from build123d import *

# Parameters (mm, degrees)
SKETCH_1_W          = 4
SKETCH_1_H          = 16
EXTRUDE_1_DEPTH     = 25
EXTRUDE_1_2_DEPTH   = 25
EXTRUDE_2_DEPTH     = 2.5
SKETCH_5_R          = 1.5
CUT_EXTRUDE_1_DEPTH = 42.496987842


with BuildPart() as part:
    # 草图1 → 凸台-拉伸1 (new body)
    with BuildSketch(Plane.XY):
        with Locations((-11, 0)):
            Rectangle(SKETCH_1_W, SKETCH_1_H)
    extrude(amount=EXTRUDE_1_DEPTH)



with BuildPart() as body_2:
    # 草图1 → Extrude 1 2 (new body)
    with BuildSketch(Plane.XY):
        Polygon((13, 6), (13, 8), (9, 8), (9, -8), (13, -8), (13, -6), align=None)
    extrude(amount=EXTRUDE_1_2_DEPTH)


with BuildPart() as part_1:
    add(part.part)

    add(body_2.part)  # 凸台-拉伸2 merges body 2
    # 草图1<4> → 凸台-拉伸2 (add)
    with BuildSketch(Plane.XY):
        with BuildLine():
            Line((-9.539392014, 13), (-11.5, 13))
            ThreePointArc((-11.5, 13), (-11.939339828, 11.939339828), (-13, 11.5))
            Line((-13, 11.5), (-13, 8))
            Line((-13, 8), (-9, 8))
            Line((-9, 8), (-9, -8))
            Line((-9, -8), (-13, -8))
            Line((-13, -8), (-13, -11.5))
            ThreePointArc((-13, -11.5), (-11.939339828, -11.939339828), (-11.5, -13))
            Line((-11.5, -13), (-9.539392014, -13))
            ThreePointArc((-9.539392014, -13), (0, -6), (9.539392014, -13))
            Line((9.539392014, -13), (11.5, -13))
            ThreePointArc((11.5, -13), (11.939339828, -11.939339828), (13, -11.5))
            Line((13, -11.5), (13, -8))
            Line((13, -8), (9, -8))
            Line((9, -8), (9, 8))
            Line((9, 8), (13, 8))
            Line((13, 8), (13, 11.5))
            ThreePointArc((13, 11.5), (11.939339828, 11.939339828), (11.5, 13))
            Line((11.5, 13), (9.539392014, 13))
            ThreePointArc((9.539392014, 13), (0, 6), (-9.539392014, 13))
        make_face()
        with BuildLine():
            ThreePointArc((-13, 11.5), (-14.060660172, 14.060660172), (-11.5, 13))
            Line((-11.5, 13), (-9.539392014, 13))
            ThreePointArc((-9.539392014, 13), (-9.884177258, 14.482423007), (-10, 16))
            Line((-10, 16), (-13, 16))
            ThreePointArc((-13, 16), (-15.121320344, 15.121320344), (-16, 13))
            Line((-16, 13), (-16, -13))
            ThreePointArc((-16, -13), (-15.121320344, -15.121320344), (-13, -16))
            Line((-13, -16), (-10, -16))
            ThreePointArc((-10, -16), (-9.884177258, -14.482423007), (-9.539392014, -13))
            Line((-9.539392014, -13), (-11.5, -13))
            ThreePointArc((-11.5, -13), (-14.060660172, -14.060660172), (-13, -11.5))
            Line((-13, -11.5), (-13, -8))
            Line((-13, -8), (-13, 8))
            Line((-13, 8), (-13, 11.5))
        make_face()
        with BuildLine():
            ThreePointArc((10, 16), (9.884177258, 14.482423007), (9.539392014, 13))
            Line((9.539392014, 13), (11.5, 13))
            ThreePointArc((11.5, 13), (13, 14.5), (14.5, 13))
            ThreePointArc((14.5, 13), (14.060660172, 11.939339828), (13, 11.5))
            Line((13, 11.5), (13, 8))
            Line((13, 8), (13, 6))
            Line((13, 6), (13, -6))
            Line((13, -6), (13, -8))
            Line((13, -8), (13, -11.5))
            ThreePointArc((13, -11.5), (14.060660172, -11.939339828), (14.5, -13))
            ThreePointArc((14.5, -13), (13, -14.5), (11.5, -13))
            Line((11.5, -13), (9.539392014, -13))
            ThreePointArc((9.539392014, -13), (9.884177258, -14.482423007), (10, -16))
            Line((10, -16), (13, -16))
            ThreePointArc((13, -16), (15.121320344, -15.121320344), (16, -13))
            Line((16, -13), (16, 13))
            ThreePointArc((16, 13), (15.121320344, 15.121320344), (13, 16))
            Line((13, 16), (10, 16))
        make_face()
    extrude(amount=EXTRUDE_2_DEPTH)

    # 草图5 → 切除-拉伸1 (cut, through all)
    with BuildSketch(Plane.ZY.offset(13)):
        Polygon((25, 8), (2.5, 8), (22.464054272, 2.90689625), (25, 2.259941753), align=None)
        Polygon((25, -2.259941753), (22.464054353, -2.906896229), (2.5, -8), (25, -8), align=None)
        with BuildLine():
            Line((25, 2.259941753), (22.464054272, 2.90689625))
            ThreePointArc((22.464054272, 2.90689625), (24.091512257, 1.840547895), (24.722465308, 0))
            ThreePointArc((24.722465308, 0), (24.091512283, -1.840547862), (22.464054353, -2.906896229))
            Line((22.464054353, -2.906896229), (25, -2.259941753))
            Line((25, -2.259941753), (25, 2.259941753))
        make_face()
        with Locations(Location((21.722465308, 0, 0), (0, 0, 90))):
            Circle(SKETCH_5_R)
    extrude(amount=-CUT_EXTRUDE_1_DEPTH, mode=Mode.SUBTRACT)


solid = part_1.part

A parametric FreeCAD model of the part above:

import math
import FreeCAD as App
import Part
import Sketcher


def add_polygon(sketch, points):
    """Adds a closed chain of lines whose ends are joined by coincident constraints."""
    first, n = sketch.GeometryCount, len(points)
    for a, b in zip(points, points[1:] + points[:1]):
        sketch.addGeometry(Part.LineSegment(App.Vector(*a, 0), App.Vector(*b, 0)), False)
    for i in range(n):
        sketch.addConstraint(Sketcher.Constraint("Coincident", first + i, 2, first + (i + 1) % n, 1))

doc = App.newDocument("Part")
body = doc.addObject("PartDesign::Body", "Body")

# Sketch on XY plane
sketch1 = doc.addObject("Sketcher::SketchObject", "Sketch")
body.addObject(sketch1)
sketch1.AttachmentSupport = (doc.XY_Plane, [""])
sketch1.MapMode = "FlatFace"
add_polygon(sketch1, [(-13, 8), (-13, -8), (-9, -8), (-9, 8)])  # lines 0-3
sketch1.addConstraint([
    Sketcher.Constraint("Vertical", 0),
    Sketcher.Constraint("Horizontal", 1),
    Sketcher.Constraint("Vertical", 2),
    Sketcher.Constraint("Horizontal", 3),
    Sketcher.Constraint("DistanceX", 1, 1, 1, 2, 4.0),
    Sketcher.Constraint("DistanceY", 0, 2, 0, 1, 16.0),
    Sketcher.Constraint("DistanceX", 0, 2, -1, 1, 13.0),
    Sketcher.Constraint("DistanceY", 0, 2, -1, 1, 8.0),
])
pad1 = doc.addObject("PartDesign::Pad", "Pad")
body.addObject(pad1)
pad1.Profile = sketch1
pad1.Length = 25
body2 = doc.addObject("PartDesign::Body", "Body001")

# Sketch on XY plane
sketch2 = doc.addObject("Sketcher::SketchObject", "Sketch001")
body2.addObject(sketch2)
sketch2.AttachmentSupport = (doc.getObject("XY_Plane001"), [""])
sketch2.MapMode = "FlatFace"
add_polygon(sketch2, [(13, 8), (9, 8), (9, -8), (13, -8)])  # lines 0-3
sketch2.addConstraint([
    Sketcher.Constraint("Horizontal", 0),
    Sketcher.Constraint("Vertical", 1),
    Sketcher.Constraint("Horizontal", 2),
    Sketcher.Constraint("Vertical", 3),
    Sketcher.Constraint("DistanceX", 0, 2, 0, 1, 4.0),
    Sketcher.Constraint("DistanceY", 1, 2, 1, 1, 16.0),
    Sketcher.Constraint("DistanceX", -1, 1, 0, 2, 9.0),
    Sketcher.Constraint("DistanceY", -1, 1, 0, 2, 8.0),
])
pad2 = doc.addObject("PartDesign::Pad", "Pad001")
body2.addObject(pad2)
pad2.Profile = sketch2
pad2.Length = 25
body.AllowCompound = True
doc.recompute()

boolean = doc.addObject("PartDesign::Boolean", "Boolean")
body.addObject(boolean)
boolean.Type = "Fuse"
boolean.addObjects([body2])

# Sketch on XY plane
sketch3 = doc.addObject("Sketcher::SketchObject", "Sketch002")
body.addObject(sketch3)
sketch3.AttachmentSupport = (doc.XY_Plane, [""])
sketch3.MapMode = "FlatFace"
sketch3.addGeometry(Part.LineSegment(App.Vector(-10, 16, 0), App.Vector(-13, 16, 0)), False)  # 0
sketch3.addGeometry(Part.ArcOfCircle(Part.Circle(App.Vector(-13, 13, 0), App.Vector(0, 0, 1), 3), math.radians(90), math.radians(180)), False)  # 1
sketch3.addGeometry(Part.LineSegment(App.Vector(-16, 13, 0), App.Vector(-16, -13, 0)), False)  # 2
sketch3.addGeometry(Part.ArcOfCircle(Part.Circle(App.Vector(-13, -13, 0), App.Vector(0, 0, 1), 3), math.radians(180), math.radians(270)), False)  # 3
sketch3.addGeometry(Part.LineSegment(App.Vector(-13, -16, 0), App.Vector(-10, -16, 0)), False)  # 4
sketch3.addGeometry(Part.ArcOfCircle(Part.Circle(App.Vector(0, -16, 0), App.Vector(0, 0, 1), 10), math.radians(17.457603), math.radians(180)), False)  # 5
sketch3.addGeometry(Part.ArcOfCircle(Part.Circle(App.Vector(0, -16, 0), App.Vector(0, 0, 1), 10), math.radians(0), math.radians(17.457603)), False)  # 6
sketch3.addGeometry(Part.LineSegment(App.Vector(10, -16, 0), App.Vector(13, -16, 0)), False)  # 7
sketch3.addGeometry(Part.ArcOfCircle(Part.Circle(App.Vector(13, -13, 0), App.Vector(0, 0, 1), 3), math.radians(-90), math.radians(0)), False)  # 8
sketch3.addGeometry(Part.LineSegment(App.Vector(16, -13, 0), App.Vector(16, 13, 0)), False)  # 9
sketch3.addGeometry(Part.ArcOfCircle(Part.Circle(App.Vector(13, 13, 0), App.Vector(0, 0, 1), 3), math.radians(0), math.radians(90)), False)  # 10
sketch3.addGeometry(Part.LineSegment(App.Vector(13, 16, 0), App.Vector(10, 16, 0)), False)  # 11
sketch3.addGeometry(Part.ArcOfCircle(Part.Circle(App.Vector(0, 16, 0), App.Vector(0, 0, 1), 10), math.radians(-180), math.radians(0)), False)  # 12
sketch3.addGeometry(Part.ArcOfCircle(Part.Circle(App.Vector(-13, 13, 0), App.Vector(0, 0, 1), 1.5), math.radians(-90), math.radians(0)), False)  # 13
sketch3.addGeometry(Part.ArcOfCircle(Part.Circle(App.Vector(-13, 13, 0), App.Vector(0, 0, 1), 1.5), math.radians(0), math.radians(270)), False)  # 14
add_polygon(sketch3, [(-13, 8), (-9, 8), (-9, -8), (-13, -8)])  # lines 15-18
sketch3.addGeometry(Part.ArcOfCircle(Part.Circle(App.Vector(-13, -13, 0), App.Vector(0, 0, 1), 1.5), math.radians(0), math.radians(90)), False)  # 19
sketch3.addGeometry(Part.ArcOfCircle(Part.Circle(App.Vector(-13, -13, 0), App.Vector(0, 0, 1), 1.5), math.radians(90), math.radians(360)), False)  # 20
sketch3.addGeometry(Part.ArcOfCircle(Part.Circle(App.Vector(13, -13, 0), App.Vector(0, 0, 1), 1.5), math.radians(90), math.radians(180)), False)  # 21
sketch3.addGeometry(Part.ArcOfCircle(Part.Circle(App.Vector(13, -13, 0), App.Vector(0, 0, 1), 1.5), math.radians(0), math.radians(90)), False)  # 22
sketch3.addGeometry(Part.ArcOfCircle(Part.Circle(App.Vector(13, -13, 0), App.Vector(0, 0, 1), 1.5), math.radians(180), math.radians(360)), False)  # 23
add_polygon(sketch3, [(13, -8), (9, -8), (9, 8), (13, 8)])  # lines 24-27
sketch3.addGeometry(Part.ArcOfCircle(Part.Circle(App.Vector(13, 13, 0), App.Vector(0, 0, 1), 1.5), math.radians(180), math.radians(270)), False)  # 28
sketch3.addGeometry(Part.ArcOfCircle(Part.Circle(App.Vector(13, 13, 0), App.Vector(0, 0, 1), 1.5), math.radians(0), math.radians(180)), False)  # 29
sketch3.addGeometry(Part.ArcOfCircle(Part.Circle(App.Vector(13, 13, 0), App.Vector(0, 0, 1), 1.5), math.radians(-90), math.radians(0)), False)  # 30
sketch3.addConstraint([
    Sketcher.Constraint("Tangent", 0, 2, 1, 1),
    Sketcher.Constraint("Tangent", 1, 2, 2, 1),
    Sketcher.Constraint("Tangent", 2, 2, 3, 1),
    Sketcher.Constraint("Tangent", 3, 2, 4, 1),
    Sketcher.Constraint("Coincident", 4, 2, 5, 2),
    Sketcher.Constraint("Tangent", 5, 1, 6, 2),
    Sketcher.Constraint("Coincident", 6, 1, 7, 1),
    Sketcher.Constraint("Tangent", 7, 2, 8, 1),
    Sketcher.Constraint("Tangent", 8, 2, 9, 1),
    Sketcher.Constraint("Tangent", 9, 2, 10, 1),
    Sketcher.Constraint("Tangent", 10, 2, 11, 1),
    Sketcher.Constraint("Coincident", 11, 2, 12, 2),
    Sketcher.Constraint("Coincident", 12, 1, 0, 1),
    Sketcher.Constraint("Tangent", 13, 1, 14, 2),
    Sketcher.Constraint("Coincident", 14, 1, 13, 2),
    Sketcher.Constraint("Tangent", 19, 1, 20, 2),
    Sketcher.Constraint("Coincident", 20, 1, 19, 2),
    Sketcher.Constraint("Tangent", 21, 1, 22, 2),
    Sketcher.Constraint("Tangent", 22, 1, 23, 2),
    Sketcher.Constraint("Tangent", 23, 1, 21, 2),
    Sketcher.Constraint("Tangent", 28, 1, 29, 2),
    Sketcher.Constraint("Tangent", 29, 1, 30, 2),
    Sketcher.Constraint("Tangent", 30, 1, 28, 2),
    Sketcher.Constraint("Horizontal", 0),
    Sketcher.Constraint("Vertical", 2),
    Sketcher.Constraint("Horizontal", 4),
    Sketcher.Constraint("Horizontal", 7),
    Sketcher.Constraint("Vertical", 9),
    Sketcher.Constraint("Horizontal", 11),
    Sketcher.Constraint("Horizontal", 15),
    Sketcher.Constraint("Vertical", 16),
    Sketcher.Constraint("Horizontal", 17),
    Sketcher.Constraint("Vertical", 18),
    Sketcher.Constraint("Horizontal", 24),
    Sketcher.Constraint("Vertical", 25),
    Sketcher.Constraint("Horizontal", 26),
    Sketcher.Constraint("Vertical", 27),
    Sketcher.Constraint("Coincident", 13, 3, 1, 3),
    Sketcher.Constraint("Coincident", 19, 3, 3, 3),
    Sketcher.Constraint("Coincident", 21, 3, 8, 3),
    Sketcher.Constraint("Coincident", 28, 3, 10, 3),
    Sketcher.Constraint("Equal", 1, 3),
    Sketcher.Constraint("Equal", 5, 6),
    Sketcher.Constraint("Equal", 3, 8),
    Sketcher.Constraint("Equal", 8, 10),
    Sketcher.Constraint("Equal", 6, 12),
    Sketcher.Constraint("Equal", 14, 19),
    Sketcher.Constraint("Equal", 20, 21),
    Sketcher.Constraint("Equal", 23, 28),
    Sketcher.Constraint("Symmetric", 1, 3, 8, 3, -1, 1),
    Sketcher.Constraint("Symmetric", 5, 3, 12, 3, -1, 1),
    Sketcher.Constraint("Symmetric", 15, 2, 24, 2, -1, 1),
    Sketcher.Constraint("Symmetric", 17, 2, 26, 2, -1, 1),
    Sketcher.Constraint("Symmetric", 20, 1, 30, 1, -1, 1),
    Sketcher.Constraint("Symmetric", 4, 2, 6, 1, -2),
    Sketcher.Constraint("Horizontal", 12, 3, 0, 2),
    Sketcher.Constraint("Horizontal", 2, 2, 5, 1),
    Sketcher.Constraint("Horizontal", 9, 2, 14, 1),
    Sketcher.Constraint("Horizontal", 8, 2, 19, 1),
    Sketcher.Constraint("Horizontal", 19, 1, 22, 1),
    Sketcher.Constraint("Horizontal", 22, 1, 23, 1),
    Sketcher.Constraint("Horizontal", 17, 2, 24, 2),
    Sketcher.Constraint("Horizontal", 14, 1, 28, 1),
    Sketcher.Constraint("Horizontal", 28, 1, 29, 1),
    Sketcher.Constraint("Vertical", 3, 2, 13, 1),
    Sketcher.Constraint("Vertical", 13, 1, 17, 2),
    Sketcher.Constraint("Vertical", 18, 2, 20, 1),
    Sketcher.Constraint("Vertical", 10, 2, 21, 1),
    Sketcher.Constraint("Radius", 1, 3.0),
    Sketcher.Constraint("Radius", 5, 10.0),
    Sketcher.Constraint("Radius", 13, 1.5),
    Sketcher.Constraint("DistanceX", 0, 2, 0, 1, 3.0),
    Sketcher.Constraint("DistanceX", 15, 1, 15, 2, 4.0),
    Sketcher.Constraint("DistanceY", 2, 2, 2, 1, 26.0),
    Sketcher.Constraint("DistanceY", 16, 2, 16, 1, 16.0),
])
pad3 = doc.addObject("PartDesign::Pad", "Pad002")
body.addObject(pad3)
pad3.Profile = sketch3
pad3.Length = 2.5

# Sketch on YZ plane
sketch4 = doc.addObject("Sketcher::SketchObject", "Sketch003")
body.addObject(sketch4)
sketch4.AttachmentSupport = (doc.YZ_Plane, [""])
sketch4.MapMode = "FlatFace"
sketch4.AttachmentOffset = App.Placement(App.Vector(0, 0, -13), App.Rotation())
sketch4.addGeometry([
    Part.LineSegment(App.Vector(8, 25, 0), App.Vector(8, 2.5, 0)),  # 0
    Part.LineSegment(App.Vector(8, 2.5, 0), App.Vector(2.906896, 22.464054, 0)),  # 1
    Part.ArcOfCircle(Part.Circle(App.Vector(0, 21.722465, 0), App.Vector(0, 0, 1), 3), math.radians(14.311667), math.radians(90)),  # 2
    Part.ArcOfCircle(Part.Circle(App.Vector(0, 21.722465, 0), App.Vector(0, 0, 1), 3), math.radians(90), math.radians(165.688332)),  # 3
    Part.LineSegment(App.Vector(-2.906896, 22.464054, 0), App.Vector(-8, 2.5, 0)),  # 4
    Part.LineSegment(App.Vector(-8, 2.5, 0), App.Vector(-8, 25, 0)),  # 5
    Part.LineSegment(App.Vector(-8, 25, 0), App.Vector(8, 25, 0)),  # 6
    Part.Circle(App.Vector(0, 21.722465, 0), App.Vector(0, 0, 1), 1.5),  # 7
], False)
sketch4.addConstraint([
    Sketcher.Constraint("Coincident", 0, 2, 1, 1),
    Sketcher.Constraint("Tangent", 1, 2, 2, 1),
    Sketcher.Constraint("Tangent", 2, 2, 3, 1),
    Sketcher.Constraint("Tangent", 3, 2, 4, 1),
    Sketcher.Constraint("Coincident", 4, 2, 5, 1),
    Sketcher.Constraint("Coincident", 5, 2, 6, 1),
    Sketcher.Constraint("Coincident", 6, 2, 0, 1),
    Sketcher.Constraint("Vertical", 0),
    Sketcher.Constraint("Vertical", 5),
    Sketcher.Constraint("Horizontal", 6),
    Sketcher.Constraint("Coincident", 7, 3, 2, 3),
    Sketcher.Constraint("Equal", 2, 3),
    Sketcher.Constraint("Symmetric", 1, 2, 3, 2, -2),
    Sketcher.Constraint("PointOnObject", 2, 2, -2),
    Sketcher.Constraint("Horizontal", 0, 2, 4, 2),
    Sketcher.Constraint("Diameter", 7, 3.0),
    Sketcher.Constraint("Radius", 2, 3.0),
    Sketcher.Constraint("DistanceX", 6, 1, 6, 2, 16.0),
    Sketcher.Constraint("DistanceY", 0, 2, 0, 1, 22.5),
    Sketcher.Constraint("DistanceY", -1, 1, 5, 2, 25.0),
    Sketcher.Constraint("DistanceY", 2, 3, 1, 2, 0.741589),
])
pocket1 = doc.addObject("PartDesign::Pocket", "Pocket")
body.addObject(pocket1)
pocket1.Profile = sketch4
pocket1.Type = "ThroughAll"
pocket1.Reversed = True

doc.recompute()
